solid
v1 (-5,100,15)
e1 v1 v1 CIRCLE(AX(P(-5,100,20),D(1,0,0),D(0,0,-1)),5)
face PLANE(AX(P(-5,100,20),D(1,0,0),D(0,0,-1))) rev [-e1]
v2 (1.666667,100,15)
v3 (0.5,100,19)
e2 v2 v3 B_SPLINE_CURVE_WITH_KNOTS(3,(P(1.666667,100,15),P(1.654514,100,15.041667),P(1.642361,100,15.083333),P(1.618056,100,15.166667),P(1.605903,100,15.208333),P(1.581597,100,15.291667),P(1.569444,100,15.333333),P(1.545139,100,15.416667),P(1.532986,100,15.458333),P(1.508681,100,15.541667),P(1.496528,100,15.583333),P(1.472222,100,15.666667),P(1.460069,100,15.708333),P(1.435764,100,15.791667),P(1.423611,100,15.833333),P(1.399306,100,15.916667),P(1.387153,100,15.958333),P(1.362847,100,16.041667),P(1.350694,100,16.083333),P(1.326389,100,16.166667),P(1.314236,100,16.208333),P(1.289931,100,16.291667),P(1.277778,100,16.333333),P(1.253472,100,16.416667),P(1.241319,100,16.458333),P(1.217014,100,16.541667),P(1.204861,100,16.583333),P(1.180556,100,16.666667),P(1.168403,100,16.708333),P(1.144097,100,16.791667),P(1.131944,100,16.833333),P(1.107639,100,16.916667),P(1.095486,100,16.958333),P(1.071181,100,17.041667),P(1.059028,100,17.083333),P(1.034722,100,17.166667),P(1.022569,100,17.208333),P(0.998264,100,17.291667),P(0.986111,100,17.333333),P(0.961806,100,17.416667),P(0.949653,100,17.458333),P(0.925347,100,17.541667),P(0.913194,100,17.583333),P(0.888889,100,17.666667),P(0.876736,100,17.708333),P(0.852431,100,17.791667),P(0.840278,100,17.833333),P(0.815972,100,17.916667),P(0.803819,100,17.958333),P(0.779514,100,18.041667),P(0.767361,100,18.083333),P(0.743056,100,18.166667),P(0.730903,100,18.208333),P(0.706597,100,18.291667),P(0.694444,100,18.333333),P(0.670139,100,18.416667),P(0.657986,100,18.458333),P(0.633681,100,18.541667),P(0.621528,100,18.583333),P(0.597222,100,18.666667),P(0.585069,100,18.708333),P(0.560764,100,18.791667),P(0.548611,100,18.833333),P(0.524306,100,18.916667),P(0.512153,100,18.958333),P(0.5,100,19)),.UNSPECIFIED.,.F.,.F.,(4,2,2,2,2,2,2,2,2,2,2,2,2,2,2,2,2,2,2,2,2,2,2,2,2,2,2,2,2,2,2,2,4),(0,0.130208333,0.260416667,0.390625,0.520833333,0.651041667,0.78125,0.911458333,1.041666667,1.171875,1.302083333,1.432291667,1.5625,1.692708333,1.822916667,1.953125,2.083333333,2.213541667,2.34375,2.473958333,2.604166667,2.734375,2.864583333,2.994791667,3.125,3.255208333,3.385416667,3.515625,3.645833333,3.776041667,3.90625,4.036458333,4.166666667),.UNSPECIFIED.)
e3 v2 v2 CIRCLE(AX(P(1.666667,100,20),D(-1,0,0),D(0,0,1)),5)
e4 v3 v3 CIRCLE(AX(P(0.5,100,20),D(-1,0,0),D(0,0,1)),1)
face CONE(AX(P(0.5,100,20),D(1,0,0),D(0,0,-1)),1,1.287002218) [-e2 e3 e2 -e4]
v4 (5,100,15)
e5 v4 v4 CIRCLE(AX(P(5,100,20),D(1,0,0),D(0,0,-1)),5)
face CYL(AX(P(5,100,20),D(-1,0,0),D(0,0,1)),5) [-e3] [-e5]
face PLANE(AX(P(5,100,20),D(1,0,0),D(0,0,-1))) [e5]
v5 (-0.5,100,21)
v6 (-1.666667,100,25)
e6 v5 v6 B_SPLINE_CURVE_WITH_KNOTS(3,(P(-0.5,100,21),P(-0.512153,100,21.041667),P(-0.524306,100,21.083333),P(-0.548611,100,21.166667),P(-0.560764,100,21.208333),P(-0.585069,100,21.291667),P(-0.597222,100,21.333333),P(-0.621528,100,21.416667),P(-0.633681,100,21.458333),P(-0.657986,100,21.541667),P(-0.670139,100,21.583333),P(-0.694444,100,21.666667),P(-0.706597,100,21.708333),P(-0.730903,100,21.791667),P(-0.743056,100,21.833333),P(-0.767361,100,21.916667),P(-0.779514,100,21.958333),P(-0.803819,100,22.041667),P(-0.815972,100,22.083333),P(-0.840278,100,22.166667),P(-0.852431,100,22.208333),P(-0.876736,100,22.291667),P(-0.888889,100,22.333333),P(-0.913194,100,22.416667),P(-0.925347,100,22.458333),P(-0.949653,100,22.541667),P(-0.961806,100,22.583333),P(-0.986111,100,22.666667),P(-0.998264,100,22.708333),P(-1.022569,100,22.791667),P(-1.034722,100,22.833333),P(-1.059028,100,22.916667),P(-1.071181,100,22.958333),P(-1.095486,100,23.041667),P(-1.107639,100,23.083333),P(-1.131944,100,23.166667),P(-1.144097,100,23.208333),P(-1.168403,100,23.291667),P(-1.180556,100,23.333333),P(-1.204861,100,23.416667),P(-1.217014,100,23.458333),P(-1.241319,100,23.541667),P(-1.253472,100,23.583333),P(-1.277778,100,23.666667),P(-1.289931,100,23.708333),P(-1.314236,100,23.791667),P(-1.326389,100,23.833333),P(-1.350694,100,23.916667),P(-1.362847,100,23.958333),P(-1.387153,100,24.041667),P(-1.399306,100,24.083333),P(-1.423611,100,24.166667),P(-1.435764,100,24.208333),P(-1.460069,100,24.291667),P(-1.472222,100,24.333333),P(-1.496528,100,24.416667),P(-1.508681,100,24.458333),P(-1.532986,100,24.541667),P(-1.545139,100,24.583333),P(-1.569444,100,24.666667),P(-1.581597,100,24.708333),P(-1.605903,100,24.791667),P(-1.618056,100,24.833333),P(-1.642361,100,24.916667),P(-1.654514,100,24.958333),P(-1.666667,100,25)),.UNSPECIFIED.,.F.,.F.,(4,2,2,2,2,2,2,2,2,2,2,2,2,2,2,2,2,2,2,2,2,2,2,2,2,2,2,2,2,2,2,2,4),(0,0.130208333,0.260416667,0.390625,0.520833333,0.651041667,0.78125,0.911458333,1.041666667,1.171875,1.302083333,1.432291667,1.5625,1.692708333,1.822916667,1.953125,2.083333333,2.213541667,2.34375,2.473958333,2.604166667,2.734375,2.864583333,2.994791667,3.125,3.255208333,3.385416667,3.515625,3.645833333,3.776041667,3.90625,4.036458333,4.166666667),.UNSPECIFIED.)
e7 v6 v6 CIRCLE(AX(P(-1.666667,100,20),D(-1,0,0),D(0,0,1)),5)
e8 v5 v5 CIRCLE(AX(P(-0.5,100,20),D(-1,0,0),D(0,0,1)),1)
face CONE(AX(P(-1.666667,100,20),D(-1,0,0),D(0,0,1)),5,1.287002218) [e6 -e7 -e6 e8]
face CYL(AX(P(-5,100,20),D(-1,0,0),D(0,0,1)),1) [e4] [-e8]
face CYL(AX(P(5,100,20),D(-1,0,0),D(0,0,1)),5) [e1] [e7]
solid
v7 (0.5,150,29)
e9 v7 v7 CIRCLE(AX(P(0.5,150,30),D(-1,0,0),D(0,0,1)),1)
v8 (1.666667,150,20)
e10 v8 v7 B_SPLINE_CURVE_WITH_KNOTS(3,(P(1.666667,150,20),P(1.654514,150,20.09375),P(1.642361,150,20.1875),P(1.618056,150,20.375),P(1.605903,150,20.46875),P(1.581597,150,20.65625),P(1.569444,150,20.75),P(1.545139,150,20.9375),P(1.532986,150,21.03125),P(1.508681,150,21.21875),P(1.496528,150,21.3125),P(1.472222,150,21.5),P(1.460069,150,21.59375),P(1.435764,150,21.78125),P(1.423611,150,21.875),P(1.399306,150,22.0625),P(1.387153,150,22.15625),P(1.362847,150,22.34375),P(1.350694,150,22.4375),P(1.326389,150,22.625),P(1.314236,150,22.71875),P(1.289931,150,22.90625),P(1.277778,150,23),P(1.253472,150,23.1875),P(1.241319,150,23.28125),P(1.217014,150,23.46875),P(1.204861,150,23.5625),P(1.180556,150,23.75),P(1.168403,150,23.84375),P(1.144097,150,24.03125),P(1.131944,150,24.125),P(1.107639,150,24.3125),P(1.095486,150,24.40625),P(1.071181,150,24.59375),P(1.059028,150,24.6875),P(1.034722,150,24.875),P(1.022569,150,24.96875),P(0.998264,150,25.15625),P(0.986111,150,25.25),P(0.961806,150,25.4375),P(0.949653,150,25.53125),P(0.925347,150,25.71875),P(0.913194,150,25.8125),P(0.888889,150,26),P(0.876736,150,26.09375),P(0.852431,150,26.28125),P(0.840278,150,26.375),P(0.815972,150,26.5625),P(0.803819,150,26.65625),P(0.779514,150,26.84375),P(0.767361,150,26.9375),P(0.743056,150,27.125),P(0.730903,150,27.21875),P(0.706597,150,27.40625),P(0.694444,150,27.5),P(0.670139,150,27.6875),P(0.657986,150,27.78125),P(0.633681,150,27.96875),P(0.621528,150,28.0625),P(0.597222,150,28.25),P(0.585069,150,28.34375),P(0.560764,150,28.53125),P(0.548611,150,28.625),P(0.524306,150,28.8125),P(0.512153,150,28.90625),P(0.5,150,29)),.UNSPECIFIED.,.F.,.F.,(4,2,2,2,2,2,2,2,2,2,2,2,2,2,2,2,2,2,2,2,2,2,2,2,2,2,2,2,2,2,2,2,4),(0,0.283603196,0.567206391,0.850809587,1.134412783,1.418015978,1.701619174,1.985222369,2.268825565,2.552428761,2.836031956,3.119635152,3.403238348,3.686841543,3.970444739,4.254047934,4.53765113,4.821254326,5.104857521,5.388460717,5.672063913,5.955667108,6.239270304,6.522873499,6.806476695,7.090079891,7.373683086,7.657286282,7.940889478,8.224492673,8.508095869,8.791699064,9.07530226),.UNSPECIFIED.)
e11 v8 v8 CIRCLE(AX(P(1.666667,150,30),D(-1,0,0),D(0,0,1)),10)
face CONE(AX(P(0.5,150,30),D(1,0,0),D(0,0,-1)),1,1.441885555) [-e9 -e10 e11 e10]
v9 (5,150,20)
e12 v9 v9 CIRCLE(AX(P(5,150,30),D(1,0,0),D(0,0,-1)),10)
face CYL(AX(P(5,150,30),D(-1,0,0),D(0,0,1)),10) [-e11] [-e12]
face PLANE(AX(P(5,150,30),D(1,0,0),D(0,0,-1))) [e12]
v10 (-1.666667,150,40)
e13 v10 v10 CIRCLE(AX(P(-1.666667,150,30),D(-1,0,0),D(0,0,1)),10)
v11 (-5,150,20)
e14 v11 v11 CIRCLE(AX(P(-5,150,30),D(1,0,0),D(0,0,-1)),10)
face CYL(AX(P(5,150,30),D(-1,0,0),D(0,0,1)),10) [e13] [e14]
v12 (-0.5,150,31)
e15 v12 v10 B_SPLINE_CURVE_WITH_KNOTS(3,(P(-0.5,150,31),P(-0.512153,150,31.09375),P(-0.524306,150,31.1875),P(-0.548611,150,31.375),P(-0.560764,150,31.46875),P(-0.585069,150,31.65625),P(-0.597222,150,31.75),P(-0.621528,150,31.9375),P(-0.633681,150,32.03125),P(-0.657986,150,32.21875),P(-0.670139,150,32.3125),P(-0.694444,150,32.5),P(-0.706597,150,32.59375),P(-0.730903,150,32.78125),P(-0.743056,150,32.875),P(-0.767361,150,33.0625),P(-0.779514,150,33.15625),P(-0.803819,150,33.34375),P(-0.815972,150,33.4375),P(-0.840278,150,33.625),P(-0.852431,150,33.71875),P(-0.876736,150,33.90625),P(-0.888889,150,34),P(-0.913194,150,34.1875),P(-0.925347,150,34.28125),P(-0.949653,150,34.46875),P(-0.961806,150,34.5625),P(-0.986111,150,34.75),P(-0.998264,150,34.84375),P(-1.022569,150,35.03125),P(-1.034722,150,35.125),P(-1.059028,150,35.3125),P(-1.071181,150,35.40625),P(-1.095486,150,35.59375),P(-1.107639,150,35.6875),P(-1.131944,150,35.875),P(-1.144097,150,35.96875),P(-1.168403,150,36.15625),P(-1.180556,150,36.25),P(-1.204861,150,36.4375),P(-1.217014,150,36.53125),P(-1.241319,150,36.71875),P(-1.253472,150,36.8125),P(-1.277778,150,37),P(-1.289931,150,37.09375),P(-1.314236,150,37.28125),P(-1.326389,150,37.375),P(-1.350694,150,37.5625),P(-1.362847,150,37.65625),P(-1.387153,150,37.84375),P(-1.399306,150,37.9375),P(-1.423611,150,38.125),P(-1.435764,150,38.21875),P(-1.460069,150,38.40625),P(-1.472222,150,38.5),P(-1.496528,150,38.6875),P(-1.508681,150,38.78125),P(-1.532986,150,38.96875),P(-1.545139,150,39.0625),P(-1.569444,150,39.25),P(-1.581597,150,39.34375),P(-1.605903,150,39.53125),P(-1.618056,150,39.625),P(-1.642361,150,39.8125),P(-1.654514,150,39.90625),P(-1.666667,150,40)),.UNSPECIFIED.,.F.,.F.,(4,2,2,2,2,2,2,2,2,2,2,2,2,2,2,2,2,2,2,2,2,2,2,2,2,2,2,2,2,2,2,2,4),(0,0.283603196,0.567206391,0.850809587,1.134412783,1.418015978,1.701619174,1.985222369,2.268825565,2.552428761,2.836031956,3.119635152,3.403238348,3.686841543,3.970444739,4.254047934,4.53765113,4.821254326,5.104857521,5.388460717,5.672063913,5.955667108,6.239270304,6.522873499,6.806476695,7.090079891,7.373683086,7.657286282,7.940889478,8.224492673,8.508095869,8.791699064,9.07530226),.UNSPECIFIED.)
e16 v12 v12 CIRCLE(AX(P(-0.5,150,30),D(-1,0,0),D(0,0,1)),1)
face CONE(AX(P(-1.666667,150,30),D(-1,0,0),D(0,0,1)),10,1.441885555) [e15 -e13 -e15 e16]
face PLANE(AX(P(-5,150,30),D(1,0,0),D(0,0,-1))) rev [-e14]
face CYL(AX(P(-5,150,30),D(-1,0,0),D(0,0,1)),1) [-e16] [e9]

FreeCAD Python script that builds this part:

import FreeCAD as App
import Part
import Sketcher

doc = App.newDocument("Part")
body = doc.addObject("PartDesign::Body", "Body")

sketch1 = body.newObject("Sketcher::SketchObject", "Sketch")
sketch1.AttachmentSupport = (doc.getObject("YZ_Plane"), [""])
sketch1.MapMode = "FlatFace"
sketch1.addGeometry(Part.Circle(App.Vector(150, 30, 0), App.Vector(0, 0, 1), 10), False)
sketch1.addConstraint([
    Sketcher.Constraint("Diameter", 0, 20.0),
    Sketcher.Constraint("DistanceX", -1, 1, 0, 3, 150.0),
    Sketcher.Constraint("DistanceY", -1, 1, 0, 3, 30.0),
])
pad1 = body.newObject("PartDesign::Pad", "Pad")
pad1.Profile = sketch1
pad1.Length = 10
pad1.Midplane = True

sketch2 = body.newObject("Sketcher::SketchObject", "Sketch001")
sketch2.AttachmentSupport = (doc.getObject("XY_Plane"), [""])
sketch2.MapMode = "FlatFace"
sketch2.AttachmentOffset = App.Placement(App.Vector(0, 0, 30), App.Rotation())
sketch2.addGeometry([
    Part.LineSegment(App.Vector(1.7, 160, 0), App.Vector(-1.7, 160, 0)),
    Part.LineSegment(App.Vector(-1.7, 160, 0), App.Vector(-0.5, 151, 0)),
    Part.LineSegment(App.Vector(-0.5, 151, 0), App.Vector(0.5, 151, 0)),
    Part.LineSegment(App.Vector(0.5, 151, 0), App.Vector(1.7, 160, 0)),
], False)
sketch2.addGeometry(Part.LineSegment(App.Vector(-1.7, 150, 0), App.Vector(1.7, 150, 0)), True)
sketch2.addConstraint([
    Sketcher.Constraint("Coincident", 0, 2, 1, 1),
    Sketcher.Constraint("Coincident", 1, 2, 2, 1),
    Sketcher.Constraint("Coincident", 2, 2, 3, 1),
    Sketcher.Constraint("Coincident", 3, 2, 0, 1),
    Sketcher.Constraint("Horizontal", 0),
    Sketcher.Constraint("Horizontal", 2),
    Sketcher.Constraint("Horizontal", 4),
    Sketcher.Constraint("Vertical", 0, 2, 4, 1),
    Sketcher.Constraint("Vertical", 3, 2, 4, 2),
    Sketcher.Constraint("Equal", 1, 3),
    Sketcher.Constraint("DistanceX", 2, 1, 2, 2, 1.0),
    Sketcher.Constraint("DistanceY", -1, 1, 0, 2, 160.0),
    Sketcher.Constraint("DistanceY", -1, 1, 1, 2, 151.0),
    Sketcher.Constraint("DistanceY", -1, 1, 4, 1, 150.0),
    Sketcher.Constraint("DistanceX", 1, 2, -1, 1, 0.5),
    Sketcher.Constraint("DistanceX", 0, 2, 0, 1, 3.333333),
])
groove = body.newObject("PartDesign::Groove", "Groove")
groove.Profile = sketch2
groove.ReferenceAxis = (sketch2, ["Axis0"])
groove.Angle = 360
body2 = doc.addObject("PartDesign::Body", "Body001")

sketch3 = body2.newObject("Sketcher::SketchObject", "Sketch002")
sketch3.AttachmentSupport = (doc.getObject("YZ_Plane001"), [""])
sketch3.MapMode = "FlatFace"
sketch3.addGeometry(Part.Circle(App.Vector(100, 20, 0), App.Vector(0, 0, 1), 5), False)
sketch3.addConstraint([
    Sketcher.Constraint("Diameter", 0, 10.0),
    Sketcher.Constraint("DistanceX", -1, 1, 0, 3, 100.0),
    Sketcher.Constraint("DistanceY", -1, 1, 0, 3, 20.0),
])
pad2 = body2.newObject("PartDesign::Pad", "Pad001")
pad2.Profile = sketch3
pad2.Length = 10
pad2.Midplane = True

sketch4 = body2.newObject("Sketcher::SketchObject", "Sketch003")
sketch4.AttachmentSupport = (doc.getObject("XY_Plane001"), [""])
sketch4.MapMode = "FlatFace"
sketch4.AttachmentOffset = App.Placement(App.Vector(0, 0, 20), App.Rotation())
sketch4.addGeometry([
    Part.LineSegment(App.Vector(-0.5, 101, 0), App.Vector(0.5, 101, 0)),
    Part.LineSegment(App.Vector(0.5, 101, 0), App.Vector(1.7, 105, 0)),
    Part.LineSegment(App.Vector(1.7, 105, 0), App.Vector(-1.7, 105, 0)),
    Part.LineSegment(App.Vector(-1.7, 105, 0), App.Vector(-0.5, 101, 0)),
], False)
sketch4.addGeometry(Part.LineSegment(App.Vector(-1.7, 100, 0), App.Vector(1.7, 100, 0)), True)
sketch4.addConstraint([
    Sketcher.Constraint("Coincident", 0, 2, 1, 1),
    Sketcher.Constraint("Coincident", 1, 2, 2, 1),
    Sketcher.Constraint("Coincident", 2, 2, 3, 1),
    Sketcher.Constraint("Coincident", 3, 2, 0, 1),
    Sketcher.Constraint("Horizontal", 0),
    Sketcher.Constraint("Horizontal", 2),
    Sketcher.Constraint("Horizontal", 4),
    Sketcher.Constraint("Vertical", 2, 2, 4, 1),
    Sketcher.Constraint("Vertical", 1, 2, 4, 2),
    Sketcher.Constraint("Equal", 1, 3),
    Sketcher.Constraint("DistanceX", 0, 1, 0, 2, 1.0),
    Sketcher.Constraint("DistanceY", -1, 1, 0, 2, 101.0),
    Sketcher.Constraint("DistanceY", -1, 1, 1, 2, 105.0),
    Sketcher.Constraint("DistanceY", -1, 1, 4, 1, 100.0),
    Sketcher.Constraint("DistanceX", -1, 1, 0, 2, 0.5),
    Sketcher.Constraint("DistanceX", 2, 2, 2, 1, 3.333333),
])
groove2 = body2.newObject("PartDesign::Groove", "Groove001")
groove2.Profile = sketch4
groove2.ReferenceAxis = (sketch4, ["Axis0"])
groove2.Angle = 360

doc.recompute()
